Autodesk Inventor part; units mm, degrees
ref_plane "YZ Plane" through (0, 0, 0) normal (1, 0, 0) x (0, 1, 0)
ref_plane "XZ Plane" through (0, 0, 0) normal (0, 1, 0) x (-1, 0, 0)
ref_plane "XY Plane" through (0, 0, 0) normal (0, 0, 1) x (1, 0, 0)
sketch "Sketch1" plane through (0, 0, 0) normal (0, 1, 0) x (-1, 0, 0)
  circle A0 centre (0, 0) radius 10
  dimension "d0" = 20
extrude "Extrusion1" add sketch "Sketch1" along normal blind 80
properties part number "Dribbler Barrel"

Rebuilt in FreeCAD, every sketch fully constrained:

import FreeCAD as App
import Part
import Sketcher
from FreeCAD import Vector
Q = App.Units.Quantity

doc = App.newDocument("Part")
body = doc.addObject("PartDesign::Body", "Body")

# Sketch on XZ plane
sketch1 = body.newObject("Sketcher::SketchObject", "Sketch")
sketch1.AttachmentSupport = (doc.getObject("XZ_Plane"), [""])
sketch1.MapMode = "FlatFace"
sketch1.addGeometry(Part.Circle(Vector(0, 0, 0), Vector(0, 0, 1), 10), False)
sketch1.addConstraint([
    Sketcher.Constraint("Coincident", 0, 3, -1, 1),
    Sketcher.Constraint("Diameter", 0, Q("20 mm")),
])
pad1 = body.newObject("PartDesign::Pad", "Pad")
pad1.Profile = sketch1
pad1.Length = 80
pad1.Reversed = True

doc.recompute()
